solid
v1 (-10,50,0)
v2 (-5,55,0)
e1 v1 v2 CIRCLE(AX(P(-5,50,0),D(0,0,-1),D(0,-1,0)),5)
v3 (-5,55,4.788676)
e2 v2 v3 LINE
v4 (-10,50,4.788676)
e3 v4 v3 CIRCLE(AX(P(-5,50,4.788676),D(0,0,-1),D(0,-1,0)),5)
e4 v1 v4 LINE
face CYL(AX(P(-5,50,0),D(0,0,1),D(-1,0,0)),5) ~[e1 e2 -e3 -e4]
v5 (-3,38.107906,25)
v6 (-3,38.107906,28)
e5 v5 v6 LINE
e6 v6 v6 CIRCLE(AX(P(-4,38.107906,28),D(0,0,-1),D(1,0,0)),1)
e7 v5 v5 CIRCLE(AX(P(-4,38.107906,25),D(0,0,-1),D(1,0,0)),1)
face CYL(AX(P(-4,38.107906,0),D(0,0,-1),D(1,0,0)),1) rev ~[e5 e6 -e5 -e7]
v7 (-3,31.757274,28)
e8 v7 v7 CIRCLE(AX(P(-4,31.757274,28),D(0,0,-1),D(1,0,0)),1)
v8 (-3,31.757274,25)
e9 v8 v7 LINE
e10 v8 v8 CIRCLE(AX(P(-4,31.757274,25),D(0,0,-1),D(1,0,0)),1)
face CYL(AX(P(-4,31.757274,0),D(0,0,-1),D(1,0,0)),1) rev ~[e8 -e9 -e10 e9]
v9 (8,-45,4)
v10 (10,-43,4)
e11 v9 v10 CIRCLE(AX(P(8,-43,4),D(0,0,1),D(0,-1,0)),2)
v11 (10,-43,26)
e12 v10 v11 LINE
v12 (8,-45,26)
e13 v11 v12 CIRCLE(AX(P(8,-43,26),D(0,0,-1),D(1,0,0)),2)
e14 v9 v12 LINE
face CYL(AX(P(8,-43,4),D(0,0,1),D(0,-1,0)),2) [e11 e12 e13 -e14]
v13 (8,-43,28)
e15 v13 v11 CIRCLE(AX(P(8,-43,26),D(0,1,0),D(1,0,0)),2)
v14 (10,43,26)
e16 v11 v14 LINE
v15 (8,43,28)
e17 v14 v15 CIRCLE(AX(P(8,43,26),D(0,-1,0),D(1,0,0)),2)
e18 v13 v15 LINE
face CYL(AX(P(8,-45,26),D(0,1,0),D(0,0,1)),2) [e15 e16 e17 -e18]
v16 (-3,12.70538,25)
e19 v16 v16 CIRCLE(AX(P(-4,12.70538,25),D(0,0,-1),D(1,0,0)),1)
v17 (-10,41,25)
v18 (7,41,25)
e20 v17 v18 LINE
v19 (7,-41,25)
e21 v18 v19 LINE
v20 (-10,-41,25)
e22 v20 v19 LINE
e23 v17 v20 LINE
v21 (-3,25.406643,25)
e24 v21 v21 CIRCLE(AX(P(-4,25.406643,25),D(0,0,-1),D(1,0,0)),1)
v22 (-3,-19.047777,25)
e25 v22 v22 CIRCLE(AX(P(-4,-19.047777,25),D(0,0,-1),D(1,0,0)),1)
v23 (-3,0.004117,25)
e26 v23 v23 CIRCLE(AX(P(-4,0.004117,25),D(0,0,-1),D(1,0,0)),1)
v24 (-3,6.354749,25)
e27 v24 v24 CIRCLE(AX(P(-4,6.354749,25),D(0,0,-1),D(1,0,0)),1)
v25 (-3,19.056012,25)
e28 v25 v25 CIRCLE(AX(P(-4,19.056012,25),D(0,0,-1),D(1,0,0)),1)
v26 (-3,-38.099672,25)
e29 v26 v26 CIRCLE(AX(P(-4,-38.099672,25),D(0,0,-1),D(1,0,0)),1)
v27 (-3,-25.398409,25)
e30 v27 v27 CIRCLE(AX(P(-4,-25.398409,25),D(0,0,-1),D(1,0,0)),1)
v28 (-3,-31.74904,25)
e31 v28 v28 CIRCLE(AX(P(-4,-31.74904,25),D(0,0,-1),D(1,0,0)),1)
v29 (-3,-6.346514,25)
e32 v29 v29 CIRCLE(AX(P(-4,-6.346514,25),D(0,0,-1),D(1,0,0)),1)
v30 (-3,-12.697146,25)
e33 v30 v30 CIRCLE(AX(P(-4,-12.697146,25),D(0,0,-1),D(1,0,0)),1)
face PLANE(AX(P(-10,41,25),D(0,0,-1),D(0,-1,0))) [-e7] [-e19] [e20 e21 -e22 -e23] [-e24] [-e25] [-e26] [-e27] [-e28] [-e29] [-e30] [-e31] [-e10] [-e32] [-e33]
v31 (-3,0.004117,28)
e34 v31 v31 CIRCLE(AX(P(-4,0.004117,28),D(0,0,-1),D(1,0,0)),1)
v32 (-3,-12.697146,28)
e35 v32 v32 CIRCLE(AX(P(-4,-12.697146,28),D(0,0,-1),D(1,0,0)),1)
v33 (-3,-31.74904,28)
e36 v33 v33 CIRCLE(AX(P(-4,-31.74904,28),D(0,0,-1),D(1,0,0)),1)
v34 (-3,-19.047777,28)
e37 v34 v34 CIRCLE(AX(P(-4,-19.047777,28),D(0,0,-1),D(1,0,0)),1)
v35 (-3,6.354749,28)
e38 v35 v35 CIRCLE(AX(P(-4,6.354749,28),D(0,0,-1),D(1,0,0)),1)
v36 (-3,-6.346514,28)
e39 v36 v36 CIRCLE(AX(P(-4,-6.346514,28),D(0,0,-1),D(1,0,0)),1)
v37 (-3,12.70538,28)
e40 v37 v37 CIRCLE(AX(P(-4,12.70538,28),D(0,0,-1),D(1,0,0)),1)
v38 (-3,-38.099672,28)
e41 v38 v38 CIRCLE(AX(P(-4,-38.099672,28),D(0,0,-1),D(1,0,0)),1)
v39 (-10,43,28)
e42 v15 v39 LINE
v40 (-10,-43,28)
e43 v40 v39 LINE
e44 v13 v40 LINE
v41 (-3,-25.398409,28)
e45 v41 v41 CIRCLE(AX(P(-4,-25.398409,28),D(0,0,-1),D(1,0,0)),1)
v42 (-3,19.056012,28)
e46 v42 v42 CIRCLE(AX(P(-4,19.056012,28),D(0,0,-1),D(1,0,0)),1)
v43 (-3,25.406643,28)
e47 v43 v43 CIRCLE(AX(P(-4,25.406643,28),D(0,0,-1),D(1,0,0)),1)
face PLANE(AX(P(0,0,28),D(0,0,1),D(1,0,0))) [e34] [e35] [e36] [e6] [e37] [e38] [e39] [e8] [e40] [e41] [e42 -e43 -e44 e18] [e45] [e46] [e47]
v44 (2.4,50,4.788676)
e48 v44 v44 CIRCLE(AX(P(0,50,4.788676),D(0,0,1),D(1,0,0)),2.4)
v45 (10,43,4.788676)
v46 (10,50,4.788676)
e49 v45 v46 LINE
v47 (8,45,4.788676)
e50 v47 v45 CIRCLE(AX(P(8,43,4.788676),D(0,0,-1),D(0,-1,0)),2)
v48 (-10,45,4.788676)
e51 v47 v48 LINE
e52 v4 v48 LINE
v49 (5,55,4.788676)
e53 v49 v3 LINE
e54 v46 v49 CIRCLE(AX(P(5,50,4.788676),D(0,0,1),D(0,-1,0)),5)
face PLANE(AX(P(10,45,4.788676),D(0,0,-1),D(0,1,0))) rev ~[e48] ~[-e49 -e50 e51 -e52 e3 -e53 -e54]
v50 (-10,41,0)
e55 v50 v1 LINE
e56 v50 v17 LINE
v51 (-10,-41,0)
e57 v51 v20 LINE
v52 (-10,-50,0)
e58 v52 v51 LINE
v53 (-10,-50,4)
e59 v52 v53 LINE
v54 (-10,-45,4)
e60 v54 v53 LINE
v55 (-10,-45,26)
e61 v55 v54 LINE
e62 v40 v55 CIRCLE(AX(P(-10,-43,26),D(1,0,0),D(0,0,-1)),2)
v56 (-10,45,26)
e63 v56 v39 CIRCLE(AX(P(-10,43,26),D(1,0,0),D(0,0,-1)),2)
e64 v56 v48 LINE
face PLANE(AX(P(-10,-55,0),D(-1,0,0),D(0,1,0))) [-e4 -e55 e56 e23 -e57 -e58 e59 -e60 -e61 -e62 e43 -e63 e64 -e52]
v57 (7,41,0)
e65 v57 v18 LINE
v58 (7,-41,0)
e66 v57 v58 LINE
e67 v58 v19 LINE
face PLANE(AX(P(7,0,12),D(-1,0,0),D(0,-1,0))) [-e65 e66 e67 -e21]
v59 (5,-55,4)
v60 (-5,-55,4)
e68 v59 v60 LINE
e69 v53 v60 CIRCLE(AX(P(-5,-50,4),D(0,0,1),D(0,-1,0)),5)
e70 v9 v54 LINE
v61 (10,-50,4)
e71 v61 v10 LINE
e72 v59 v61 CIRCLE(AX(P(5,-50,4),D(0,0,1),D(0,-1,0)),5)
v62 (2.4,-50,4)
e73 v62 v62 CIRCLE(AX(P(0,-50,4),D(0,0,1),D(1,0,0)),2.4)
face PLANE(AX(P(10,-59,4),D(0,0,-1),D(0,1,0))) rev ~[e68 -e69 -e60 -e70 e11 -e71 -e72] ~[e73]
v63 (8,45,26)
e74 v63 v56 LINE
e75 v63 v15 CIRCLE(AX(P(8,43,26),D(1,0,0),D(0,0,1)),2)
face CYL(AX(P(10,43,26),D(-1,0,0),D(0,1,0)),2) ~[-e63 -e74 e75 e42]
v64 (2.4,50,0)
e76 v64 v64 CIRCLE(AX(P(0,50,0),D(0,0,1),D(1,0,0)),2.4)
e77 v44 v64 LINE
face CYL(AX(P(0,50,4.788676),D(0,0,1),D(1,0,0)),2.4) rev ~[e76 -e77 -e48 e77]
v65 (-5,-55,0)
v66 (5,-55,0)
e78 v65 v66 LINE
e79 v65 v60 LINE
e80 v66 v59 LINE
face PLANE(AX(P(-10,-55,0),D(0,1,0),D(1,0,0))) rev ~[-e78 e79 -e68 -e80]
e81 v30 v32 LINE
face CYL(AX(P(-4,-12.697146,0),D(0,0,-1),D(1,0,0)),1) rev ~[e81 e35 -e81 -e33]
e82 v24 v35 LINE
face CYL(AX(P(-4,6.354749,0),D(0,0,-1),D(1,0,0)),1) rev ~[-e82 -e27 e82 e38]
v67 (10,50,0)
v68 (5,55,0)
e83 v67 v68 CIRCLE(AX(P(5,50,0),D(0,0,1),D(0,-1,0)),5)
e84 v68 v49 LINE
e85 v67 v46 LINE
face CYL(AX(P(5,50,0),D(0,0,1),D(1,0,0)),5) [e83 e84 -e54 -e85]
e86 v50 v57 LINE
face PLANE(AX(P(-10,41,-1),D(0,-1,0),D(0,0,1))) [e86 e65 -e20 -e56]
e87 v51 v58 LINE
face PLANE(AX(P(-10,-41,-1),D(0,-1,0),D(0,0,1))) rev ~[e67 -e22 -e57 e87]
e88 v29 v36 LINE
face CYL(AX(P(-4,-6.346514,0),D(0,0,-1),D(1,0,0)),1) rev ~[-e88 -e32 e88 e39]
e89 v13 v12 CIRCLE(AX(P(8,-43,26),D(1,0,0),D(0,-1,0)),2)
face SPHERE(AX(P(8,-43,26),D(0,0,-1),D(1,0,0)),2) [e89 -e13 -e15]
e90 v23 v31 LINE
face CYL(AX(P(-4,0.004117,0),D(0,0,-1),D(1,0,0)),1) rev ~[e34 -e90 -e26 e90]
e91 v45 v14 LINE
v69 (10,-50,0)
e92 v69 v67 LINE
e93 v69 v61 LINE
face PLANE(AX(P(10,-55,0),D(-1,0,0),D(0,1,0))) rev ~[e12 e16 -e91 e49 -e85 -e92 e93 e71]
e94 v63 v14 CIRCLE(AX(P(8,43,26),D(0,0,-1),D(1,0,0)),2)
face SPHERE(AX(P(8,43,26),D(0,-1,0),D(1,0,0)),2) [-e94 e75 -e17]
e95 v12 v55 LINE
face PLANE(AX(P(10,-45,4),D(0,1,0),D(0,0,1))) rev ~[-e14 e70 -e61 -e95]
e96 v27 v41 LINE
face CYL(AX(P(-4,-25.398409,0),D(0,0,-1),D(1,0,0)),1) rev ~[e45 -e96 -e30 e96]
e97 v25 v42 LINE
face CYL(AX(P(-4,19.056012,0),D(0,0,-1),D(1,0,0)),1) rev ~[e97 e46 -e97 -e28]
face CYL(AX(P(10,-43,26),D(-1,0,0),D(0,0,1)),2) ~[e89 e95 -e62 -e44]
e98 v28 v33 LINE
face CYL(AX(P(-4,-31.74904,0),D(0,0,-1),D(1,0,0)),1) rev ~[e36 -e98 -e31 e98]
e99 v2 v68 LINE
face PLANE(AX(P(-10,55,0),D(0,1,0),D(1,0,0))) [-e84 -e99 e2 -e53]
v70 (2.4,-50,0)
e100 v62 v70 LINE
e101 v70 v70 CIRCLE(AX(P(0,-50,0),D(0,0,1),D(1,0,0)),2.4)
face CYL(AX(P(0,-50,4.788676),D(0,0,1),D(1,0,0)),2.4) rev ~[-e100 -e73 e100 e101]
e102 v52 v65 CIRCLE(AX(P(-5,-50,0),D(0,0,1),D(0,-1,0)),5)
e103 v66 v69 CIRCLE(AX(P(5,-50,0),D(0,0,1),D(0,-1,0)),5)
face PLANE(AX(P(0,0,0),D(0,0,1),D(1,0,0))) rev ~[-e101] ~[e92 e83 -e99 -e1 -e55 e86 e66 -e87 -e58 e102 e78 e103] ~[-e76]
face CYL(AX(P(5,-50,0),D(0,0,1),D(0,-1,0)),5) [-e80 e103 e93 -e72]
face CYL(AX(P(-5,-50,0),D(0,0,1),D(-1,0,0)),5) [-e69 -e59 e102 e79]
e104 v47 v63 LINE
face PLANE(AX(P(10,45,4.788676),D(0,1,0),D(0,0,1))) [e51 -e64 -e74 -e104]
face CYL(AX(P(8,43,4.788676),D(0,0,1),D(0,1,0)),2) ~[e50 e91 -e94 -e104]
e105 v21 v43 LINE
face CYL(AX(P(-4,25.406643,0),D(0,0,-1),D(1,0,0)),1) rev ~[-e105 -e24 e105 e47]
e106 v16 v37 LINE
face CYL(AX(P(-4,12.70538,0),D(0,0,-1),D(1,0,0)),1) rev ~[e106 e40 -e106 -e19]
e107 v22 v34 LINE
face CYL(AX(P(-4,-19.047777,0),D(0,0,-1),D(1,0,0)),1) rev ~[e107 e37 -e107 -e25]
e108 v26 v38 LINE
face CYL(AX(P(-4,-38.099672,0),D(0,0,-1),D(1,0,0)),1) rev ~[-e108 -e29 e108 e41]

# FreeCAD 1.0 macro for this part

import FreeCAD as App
import Part
import Sketcher

V = App.Vector
Q = App.Units.Quantity


def edges_at(feature, points):
    """Names of the edges that pass closest to the given points."""
    edges = feature.Shape.Edges
    near = lambda p: min(range(len(edges)), key=lambda i: edges[i].distToShape(Part.Vertex(*p))[0])
    return sorted({f"Edge{near(p) + 1}" for p in points})

doc = App.newDocument("Part")
body = doc.addObject("PartDesign::Body", "Body")

# Sketch on XY plane
sketch1 = body.newObject("Sketcher::SketchObject", "Sketch")
sketch1.AttachmentSupport = (doc.getObject("XY_Plane"), [""])
sketch1.MapMode = "FlatFace"
sketch1.addGeometry([
    Part.LineSegment(V(-10, 55, 0), V(-10, -55, 0)),
    Part.LineSegment(V(-10, -55, 0), V(10, -55, 0)),
    Part.LineSegment(V(10, -55, 0), V(10, 55, 0)),
    Part.LineSegment(V(10, 55, 0), V(-10, 55, 0)),
], False)
sketch1.addConstraint([
    Sketcher.Constraint("Coincident", 0, 2, 1, 1),
    Sketcher.Constraint("Coincident", 1, 2, 2, 1),
    Sketcher.Constraint("Coincident", 2, 2, 3, 1),
    Sketcher.Constraint("Coincident", 3, 2, 0, 1),
    Sketcher.Constraint("Vertical", 0),
    Sketcher.Constraint("Horizontal", 1),
    Sketcher.Constraint("Vertical", 2),
    Sketcher.Constraint("Horizontal", 3),
    Sketcher.Constraint("Symmetric", 0, 2, 2, 2, -1, 1),
    Sketcher.Constraint("DistanceX", 1, 1, 1, 2, Q("20 mm")),
    Sketcher.Constraint("DistanceY", 0, 2, 0, 1, Q("110 mm")),
])
pad1 = body.newObject("PartDesign::Pad", "Pad")
pad1.Profile = sketch1
pad1.Length = 28

# Sketch on XY plane
sketch2 = body.newObject("Sketcher::SketchObject", "Sketch001")
sketch2.AttachmentSupport = (doc.getObject("XY_Plane"), [""])
sketch2.MapMode = "FlatFace"
sketch2.addGeometry([
    Part.Circle(V(-4, 0, 0), V(0, 0, 1), 1),  # 0
    Part.Circle(V(-4, -6.3, 0), V(0, 0, 1), 1),  # 1
    Part.Circle(V(-4, -12.7, 0), V(0, 0, 1), 1),  # 2
    Part.Circle(V(-4, 6.4, 0), V(0, 0, 1), 1),  # 3
    Part.Circle(V(-4, -19, 0), V(0, 0, 1), 1),  # 4
    Part.Circle(V(-4, -25.4, 0), V(0, 0, 1), 1),  # 5
    Part.Circle(V(-4, -31.7, 0), V(0, 0, 1), 1),  # 6
    Part.Circle(V(-4, -38.1, 0), V(0, 0, 1), 1),  # 7
    Part.Circle(V(-4, 38.1, 0), V(0, 0, 1), 1),  # 8
    Part.Circle(V(-4, 12.7, 0), V(0, 0, 1), 1),  # 9
    Part.Circle(V(-4, 19.1, 0), V(0, 0, 1), 1),  # 10
    Part.Circle(V(-4, 25.4, 0), V(0, 0, 1), 1),  # 11
    Part.Circle(V(-4, 31.8, 0), V(0, 0, 1), 1),  # 12
], False)
sketch2.addConstraint([
    Sketcher.Constraint("Equal", 0, 1),
    Sketcher.Constraint("Equal", 1, 2),
    Sketcher.Constraint("Equal", 2, 3),
    Sketcher.Constraint("Equal", 3, 4),
    Sketcher.Constraint("Equal", 4, 5),
    Sketcher.Constraint("Equal", 5, 6),
    Sketcher.Constraint("Equal", 6, 7),
    Sketcher.Constraint("Equal", 7, 8),
    Sketcher.Constraint("Equal", 8, 9),
    Sketcher.Constraint("Equal", 9, 10),
    Sketcher.Constraint("Equal", 10, 11),
    Sketcher.Constraint("Equal", 11, 12),
    Sketcher.Constraint("Vertical", 0, 3, 1, 3),
    Sketcher.Constraint("Vertical", 1, 3, 2, 3),
    Sketcher.Constraint("Vertical", 2, 3, 3, 3),
    Sketcher.Constraint("Vertical", 3, 3, 4, 3),
    Sketcher.Constraint("Vertical", 4, 3, 5, 3),
    Sketcher.Constraint("Vertical", 5, 3, 6, 3),
    Sketcher.Constraint("Vertical", 6, 3, 7, 3),
    Sketcher.Constraint("Vertical", 7, 3, 8, 3),
    Sketcher.Constraint("Vertical", 8, 3, 9, 3),
    Sketcher.Constraint("Vertical", 9, 3, 10, 3),
    Sketcher.Constraint("Vertical", 10, 3, 11, 3),
    Sketcher.Constraint("Vertical", 11, 3, 12, 3),
    Sketcher.Constraint("Diameter", 0, Q("2 mm")),
    Sketcher.Constraint("DistanceX", 0, 3, -1, 1, Q("4 mm")),
    Sketcher.Constraint("DistanceY", -1, 1, 3, 3, Q("6.354749 mm")),
    Sketcher.Constraint("DistanceY", 5, 3, -1, 1, Q("25.398409 mm")),
    Sketcher.Constraint("DistanceY", 6, 3, -1, 1, Q("31.74904 mm")),
    Sketcher.Constraint("DistanceY", 7, 3, -1, 1, Q("38.099672 mm")),
    Sketcher.Constraint("DistanceY", -1, 1, 9, 3, Q("12.70538 mm")),
    Sketcher.Constraint("DistanceY", -1, 1, 10, 3, Q("19.056012 mm")),
    Sketcher.Constraint("DistanceY", 1, 3, 0, 3, Q("6.350631 mm")),
    Sketcher.Constraint("DistanceY", 4, 3, 2, 3, Q("6.350631 mm")),
    Sketcher.Constraint("DistanceY", 0, 3, 8, 3, Q("38.103789 mm")),
    Sketcher.Constraint("DistanceY", 10, 3, 11, 3, Q("6.350631 mm")),
    Sketcher.Constraint("DistanceY", 11, 3, 12, 3, Q("6.350631 mm")),
    Sketcher.Constraint("DistanceY", -1, 1, 0, 3, Q("0.004117 mm")),
    Sketcher.Constraint("DistanceY", 2, 3, -1, 1, Q("12.697146 mm")),
])
pocket1 = body.newObject("PartDesign::Pocket", "Pocket")
pocket1.Profile = sketch2
pocket1.Type = "ThroughAll"
pocket1.Reversed = True

# Sketch on YZ plane
sketch3 = body.newObject("Sketcher::SketchObject", "Sketch002")
sketch3.AttachmentSupport = (doc.getObject("YZ_Plane"), [""])
sketch3.MapMode = "FlatFace"
sketch3.AttachmentOffset = App.Placement(V(0, 0, 10), App.Rotation())
sketch3.addGeometry([
    Part.LineSegment(V(-59, 29, 0), V(-59, 4, 0)),  # 0
    Part.LineSegment(V(-59, 4, 0), V(-45, 4, 0)),  # 1
    Part.LineSegment(V(-45, 4, 0), V(-45, 29, 0)),  # 2
    Part.LineSegment(V(-45, 29, 0), V(-59, 29, 0)),  # 3
    Part.LineSegment(V(45, 29, 0), V(45, 5, 0)),  # 4
    Part.LineSegment(V(45, 5, 0), V(58, 5, 0)),  # 5
    Part.LineSegment(V(58, 5, 0), V(58, 29, 0)),  # 6
    Part.LineSegment(V(58, 29, 0), V(45, 29, 0)),  # 7
], False)
sketch3.addConstraint([
    Sketcher.Constraint("Coincident", 0, 2, 1, 1),
    Sketcher.Constraint("Coincident", 1, 2, 2, 1),
    Sketcher.Constraint("Coincident", 2, 2, 3, 1),
    Sketcher.Constraint("Coincident", 3, 2, 0, 1),
    Sketcher.Constraint("Coincident", 4, 2, 5, 1),
    Sketcher.Constraint("Coincident", 5, 2, 6, 1),
    Sketcher.Constraint("Coincident", 6, 2, 7, 1),
    Sketcher.Constraint("Coincident", 7, 2, 4, 1),
    Sketcher.Constraint("Vertical", 0),
    Sketcher.Constraint("Horizontal", 1),
    Sketcher.Constraint("Vertical", 2),
    Sketcher.Constraint("Horizontal", 3),
    Sketcher.Constraint("Vertical", 4),
    Sketcher.Constraint("Horizontal", 5),
    Sketcher.Constraint("Vertical", 6),
    Sketcher.Constraint("Horizontal", 7),
    Sketcher.Constraint("Symmetric", 2, 2, 7, 2, -2),
    Sketcher.Constraint("DistanceX", 1, 1, 1, 2, Q("14 mm")),
    Sketcher.Constraint("DistanceY", 0, 2, 0, 1, Q("25 mm")),
    Sketcher.Constraint("DistanceX", 0, 2, -1, 1, Q("59 mm")),
    Sketcher.Constraint("DistanceY", -1, 1, 0, 2, Q("4 mm")),
    Sketcher.Constraint("DistanceX", 5, 1, 5, 2, Q("12.717113 mm")),
    Sketcher.Constraint("DistanceY", 4, 2, 4, 1, Q("24.211324 mm")),
])
pocket2 = body.newObject("PartDesign::Pocket", "Pocket001")
pocket2.Profile = sketch3
pocket2.Type = "ThroughAll"

# Sketch on YZ plane
sketch4 = body.newObject("Sketcher::SketchObject", "Sketch003")
sketch4.AttachmentSupport = (doc.getObject("YZ_Plane"), [""])
sketch4.MapMode = "FlatFace"
sketch4.AttachmentOffset = App.Placement(V(0, 0, -10), App.Rotation())
sketch4.addGeometry([
    Part.LineSegment(V(41, 25, 0), V(41, -1, 0)),
    Part.LineSegment(V(41, -1, 0), V(-41, -1, 0)),
    Part.LineSegment(V(-41, -1, 0), V(-41, 25, 0)),
    Part.LineSegment(V(-41, 25, 0), V(41, 25, 0)),
], False)
sketch4.addConstraint([
    Sketcher.Constraint("Coincident", 0, 2, 1, 1),
    Sketcher.Constraint("Coincident", 1, 2, 2, 1),
    Sketcher.Constraint("Coincident", 2, 2, 3, 1),
    Sketcher.Constraint("Coincident", 3, 2, 0, 1),
    Sketcher.Constraint("Vertical", 0),
    Sketcher.Constraint("Horizontal", 1),
    Sketcher.Constraint("Vertical", 2),
    Sketcher.Constraint("Horizontal", 3),
    Sketcher.Constraint("DistanceX", 1, 2, 1, 1, Q("82 mm")),
    Sketcher.Constraint("DistanceY", 0, 2, 0, 1, Q("26 mm")),
    Sketcher.Constraint("DistanceX", -1, 1, 0, 2, Q("41 mm")),
    Sketcher.Constraint("DistanceY", 0, 2, -1, 1, Q("1 mm")),
])
pocket3 = body.newObject("PartDesign::Pocket", "Pocket002")
pocket3.Profile = sketch4
pocket3.Length = 17
pocket3.Reversed = True

# Sketch on XY plane
sketch5 = body.newObject("Sketcher::SketchObject", "Sketch004")
sketch5.AttachmentSupport = (doc.getObject("XY_Plane"), [""])
sketch5.MapMode = "FlatFace"
sketch5.AttachmentOffset = App.Placement(V(0, 0, 4.788676), App.Rotation())
sketch5.addGeometry([
    Part.Circle(V(0, 50, 0), V(0, 0, 1), 2.4),
    Part.Circle(V(0, -50, 0), V(0, 0, 1), 2.4),
], False)
sketch5.addConstraint([
    Sketcher.Constraint("Equal", 0, 1),
    Sketcher.Constraint("Symmetric", 0, 3, 1, 3, -1, 1),
    Sketcher.Constraint("PointOnObject", 0, 3, -2),
    Sketcher.Constraint("Diameter", 0, Q("4.8 mm")),
    Sketcher.Constraint("DistanceY", -1, 1, 0, 3, Q("50 mm")),
])
pocket4 = body.newObject("PartDesign::Pocket", "Pocket003")
pocket4.Profile = sketch5
pocket4.Length = 5
doc.recompute()

fillet = body.newObject("PartDesign::Fillet", "Fillet")
fillet.Base = (pocket4, edges_at(pocket4, [
    (10, -45, 16),
    (10, 0, 28),
    (10, 45, 16.394),
    (0, 45, 28),
    (0, -45, 28),
]))
fillet.Radius = 2
doc.recompute()

fillet2 = body.newObject("PartDesign::Fillet", "Fillet001")
fillet2.Base = (fillet, edges_at(fillet, [
    (10, 55, 2.394),
    (-10, 55, 2.394),
    (-10, -55, 2),
    (10, -55, 2),
]))
fillet2.Radius = 5

doc.recompute()
